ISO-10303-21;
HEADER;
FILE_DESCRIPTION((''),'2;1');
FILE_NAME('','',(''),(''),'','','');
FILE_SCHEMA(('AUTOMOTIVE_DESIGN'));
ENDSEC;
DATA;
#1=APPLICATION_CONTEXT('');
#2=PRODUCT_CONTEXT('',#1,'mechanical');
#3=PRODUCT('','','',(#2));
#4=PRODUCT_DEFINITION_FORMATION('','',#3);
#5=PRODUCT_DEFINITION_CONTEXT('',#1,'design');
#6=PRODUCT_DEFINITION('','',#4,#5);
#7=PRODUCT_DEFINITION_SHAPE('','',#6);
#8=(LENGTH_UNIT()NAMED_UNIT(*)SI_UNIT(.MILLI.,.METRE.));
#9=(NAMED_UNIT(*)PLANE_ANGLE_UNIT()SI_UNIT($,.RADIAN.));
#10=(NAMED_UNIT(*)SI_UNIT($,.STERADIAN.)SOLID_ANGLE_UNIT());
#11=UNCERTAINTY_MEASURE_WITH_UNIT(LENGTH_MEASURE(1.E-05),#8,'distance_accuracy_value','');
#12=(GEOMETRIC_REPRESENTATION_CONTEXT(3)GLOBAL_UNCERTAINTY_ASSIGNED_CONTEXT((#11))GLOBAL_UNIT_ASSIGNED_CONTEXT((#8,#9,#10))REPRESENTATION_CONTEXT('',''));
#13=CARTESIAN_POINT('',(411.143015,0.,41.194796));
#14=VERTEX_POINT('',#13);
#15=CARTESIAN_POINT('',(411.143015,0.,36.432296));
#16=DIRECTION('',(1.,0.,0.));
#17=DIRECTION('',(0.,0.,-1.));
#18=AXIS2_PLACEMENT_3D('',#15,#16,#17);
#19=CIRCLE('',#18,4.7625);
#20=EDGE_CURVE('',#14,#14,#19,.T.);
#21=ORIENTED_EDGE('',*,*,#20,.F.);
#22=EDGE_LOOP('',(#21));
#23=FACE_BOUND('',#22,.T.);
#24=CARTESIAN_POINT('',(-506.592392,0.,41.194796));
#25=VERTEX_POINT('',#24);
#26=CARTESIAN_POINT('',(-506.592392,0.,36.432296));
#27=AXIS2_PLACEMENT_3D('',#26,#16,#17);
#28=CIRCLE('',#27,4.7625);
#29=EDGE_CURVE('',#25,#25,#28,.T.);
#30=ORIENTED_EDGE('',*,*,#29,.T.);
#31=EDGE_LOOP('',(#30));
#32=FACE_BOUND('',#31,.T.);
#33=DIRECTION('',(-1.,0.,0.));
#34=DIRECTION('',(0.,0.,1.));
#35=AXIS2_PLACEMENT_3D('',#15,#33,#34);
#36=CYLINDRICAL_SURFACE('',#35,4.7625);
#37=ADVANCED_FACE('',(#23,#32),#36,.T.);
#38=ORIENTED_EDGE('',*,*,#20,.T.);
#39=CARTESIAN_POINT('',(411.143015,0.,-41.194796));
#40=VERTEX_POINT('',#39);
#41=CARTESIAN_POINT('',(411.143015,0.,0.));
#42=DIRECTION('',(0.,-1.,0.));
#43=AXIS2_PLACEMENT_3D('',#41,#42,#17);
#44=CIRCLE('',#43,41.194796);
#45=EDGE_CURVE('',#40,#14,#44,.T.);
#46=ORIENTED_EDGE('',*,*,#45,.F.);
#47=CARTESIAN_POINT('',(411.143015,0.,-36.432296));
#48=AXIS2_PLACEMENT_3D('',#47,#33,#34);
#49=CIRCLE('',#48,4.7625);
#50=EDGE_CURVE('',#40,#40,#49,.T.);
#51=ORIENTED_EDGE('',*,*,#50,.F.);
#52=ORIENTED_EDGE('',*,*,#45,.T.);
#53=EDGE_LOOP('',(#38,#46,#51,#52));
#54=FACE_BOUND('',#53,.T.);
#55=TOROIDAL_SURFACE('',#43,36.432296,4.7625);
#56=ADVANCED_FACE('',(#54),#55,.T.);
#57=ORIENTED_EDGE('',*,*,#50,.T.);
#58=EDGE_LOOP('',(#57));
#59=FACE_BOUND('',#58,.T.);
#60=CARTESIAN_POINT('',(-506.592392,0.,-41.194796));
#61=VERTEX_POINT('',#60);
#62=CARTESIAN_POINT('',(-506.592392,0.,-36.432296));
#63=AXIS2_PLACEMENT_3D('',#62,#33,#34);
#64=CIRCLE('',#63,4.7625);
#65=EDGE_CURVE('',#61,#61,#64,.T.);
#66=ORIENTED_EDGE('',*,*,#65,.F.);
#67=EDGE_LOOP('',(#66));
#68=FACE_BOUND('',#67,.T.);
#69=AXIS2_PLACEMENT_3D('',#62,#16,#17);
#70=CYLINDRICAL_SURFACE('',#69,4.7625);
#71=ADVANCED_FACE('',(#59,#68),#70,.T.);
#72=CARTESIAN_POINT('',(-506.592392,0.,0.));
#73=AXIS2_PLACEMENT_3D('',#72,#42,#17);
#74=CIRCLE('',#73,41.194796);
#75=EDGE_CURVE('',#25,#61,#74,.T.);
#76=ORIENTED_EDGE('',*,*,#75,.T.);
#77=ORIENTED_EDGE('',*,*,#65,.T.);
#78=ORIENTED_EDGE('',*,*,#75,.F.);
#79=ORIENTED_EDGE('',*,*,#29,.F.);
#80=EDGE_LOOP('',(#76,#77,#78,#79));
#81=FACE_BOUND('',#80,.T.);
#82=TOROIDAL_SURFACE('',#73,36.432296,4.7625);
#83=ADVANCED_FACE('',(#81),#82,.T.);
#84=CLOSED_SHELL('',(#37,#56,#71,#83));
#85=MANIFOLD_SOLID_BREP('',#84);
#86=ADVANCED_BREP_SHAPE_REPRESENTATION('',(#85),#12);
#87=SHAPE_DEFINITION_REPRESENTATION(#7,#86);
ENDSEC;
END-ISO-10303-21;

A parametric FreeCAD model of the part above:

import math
import FreeCAD as App
import Part
import Sketcher
from FreeCAD import Vector
Q = App.Units.Quantity

doc = App.newDocument("Part")
body = doc.addObject("PartDesign::Body", "Body")

sketch1 = doc.addObject("Sketcher::SketchObject", "Sketch")
body.addObject(sketch1)
sketch1.AttachmentSupport = (doc.YZ_Plane, [""])
sketch1.MapMode = "FlatFace"
sketch1.AttachmentOffset = App.Placement(Vector(0, 0, -506.592392), App.Rotation())
sketch1.addGeometry(Part.Circle(Vector(0, -36.4, 0), Vector(0, 0, 1), 4.8), False)
sketch1.addConstraint(Sketcher.Constraint("PointOnObject", 0, 3, -2))
sketch1.addConstraint(Sketcher.Constraint("Diameter", 0, Q("0.375 in")))
sketch1.addConstraint(Sketcher.Constraint("DistanceY", 0, 3, -1, 1, Q("36.432296 mm")))

sketch2 = doc.addObject("Sketcher::SketchObject", "Sketch001")
body.addObject(sketch2)
sketch2.AttachmentSupport = (doc.XZ_Plane, [""])
sketch2.MapMode = "FlatFace"
sketch2.addGeometry(Part.LineSegment(Vector(-507, -36, 0), Vector(411, -36, 0)), False)
sketch2.addGeometry(Part.ArcOfCircle(Part.Circle(Vector(411, 0, 0), Vector(0, 0, 1), 36), math.radians(-90), math.radians(90)), False)
sketch2.addGeometry(Part.LineSegment(Vector(411, 36, 0), Vector(-507, 36, 0)), False)
sketch2.addGeometry(Part.ArcOfCircle(Part.Circle(Vector(-507, 0, 0), Vector(0, 0, 1), 36), math.radians(90), math.radians(270)), False)
sketch2.addConstraint(Sketcher.Constraint("Tangent", 0, 2, 1, 1))
sketch2.addConstraint(Sketcher.Constraint("Tangent", 1, 2, 2, 1))
sketch2.addConstraint(Sketcher.Constraint("Tangent", 2, 2, 3, 1))
sketch2.addConstraint(Sketcher.Constraint("Tangent", 3, 2, 0, 1))
sketch2.addConstraint(Sketcher.Constraint("Horizontal", 0))
sketch2.addConstraint(Sketcher.Constraint("Horizontal", 2))
sketch2.addConstraint(Sketcher.Constraint("PointOnObject", 1, 3, -1))
sketch2.addConstraint(Sketcher.Constraint("Radius", 1, Q("36.432296 mm")))
sketch2.addConstraint(Sketcher.Constraint("DistanceX", 0, 1, 0, 2, Q("917.735407 mm")))
sketch2.addConstraint(Sketcher.Constraint("DistanceX", -1, 1, 1, 3, Q("411.143015 mm")))
doc.recompute()

additivepipe = doc.addObject("PartDesign::AdditivePipe", "AdditivePipe")
body.addObject(additivepipe)
additivepipe.Profile = sketch1
additivepipe.Spine = (sketch2, ["Edge1", "Edge2", "Edge3", "Edge4"])

doc.recompute()
